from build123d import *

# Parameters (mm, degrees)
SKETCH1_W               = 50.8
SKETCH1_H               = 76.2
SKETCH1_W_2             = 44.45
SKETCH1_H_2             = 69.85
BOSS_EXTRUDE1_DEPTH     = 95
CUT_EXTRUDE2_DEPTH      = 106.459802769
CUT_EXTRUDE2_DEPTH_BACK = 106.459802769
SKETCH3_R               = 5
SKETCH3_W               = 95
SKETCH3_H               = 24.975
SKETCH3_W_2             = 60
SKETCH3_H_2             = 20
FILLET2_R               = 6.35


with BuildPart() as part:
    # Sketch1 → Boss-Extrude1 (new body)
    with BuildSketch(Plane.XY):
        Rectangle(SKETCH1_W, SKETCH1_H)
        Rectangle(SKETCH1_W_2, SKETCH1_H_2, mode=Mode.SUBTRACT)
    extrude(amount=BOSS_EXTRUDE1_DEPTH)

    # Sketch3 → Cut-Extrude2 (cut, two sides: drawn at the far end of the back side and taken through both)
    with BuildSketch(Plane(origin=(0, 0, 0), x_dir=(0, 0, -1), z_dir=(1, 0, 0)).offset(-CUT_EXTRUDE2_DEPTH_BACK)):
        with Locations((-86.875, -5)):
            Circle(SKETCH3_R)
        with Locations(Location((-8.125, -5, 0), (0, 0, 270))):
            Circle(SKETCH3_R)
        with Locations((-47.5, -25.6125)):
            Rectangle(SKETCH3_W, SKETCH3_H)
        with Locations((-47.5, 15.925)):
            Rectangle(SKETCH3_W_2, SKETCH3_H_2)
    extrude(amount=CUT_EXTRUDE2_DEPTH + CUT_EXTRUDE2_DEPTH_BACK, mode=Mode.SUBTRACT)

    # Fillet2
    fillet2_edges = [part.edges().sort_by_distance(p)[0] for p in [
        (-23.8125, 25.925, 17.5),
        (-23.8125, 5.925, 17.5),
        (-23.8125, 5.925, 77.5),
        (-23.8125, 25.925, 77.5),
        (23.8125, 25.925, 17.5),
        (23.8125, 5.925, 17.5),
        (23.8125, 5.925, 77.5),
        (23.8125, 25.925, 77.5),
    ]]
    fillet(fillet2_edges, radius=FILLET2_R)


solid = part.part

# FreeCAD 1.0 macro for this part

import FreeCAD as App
import Part
import Sketcher
Q = App.Units.Quantity


def edges_at(feature, points):
    """Names of the edges that pass closest to the given points."""
    edges = feature.Shape.Edges
    near = lambda p: min(range(len(edges)), key=lambda i: edges[i].distToShape(Part.Vertex(*p))[0])
    return sorted({f"Edge{near(p) + 1}" for p in points})

doc = App.newDocument("Part")
params = doc.addObject("Spreadsheet::Sheet", "Params")
for row, (alias, value) in enumerate([
    ("sketch1_width", "2 in"),
    ("sketch1_height", "3 in"),
    ("sketch1_width2", "1.75 in"),
    ("sketch1_height2", "2.75 in"),
    ("pad1_length", "95 mm"),
    ("fillet_radius", "0.25 in"),
], start=1):
    params.set(f"A{row}", alias)
    params.set(f"B{row}", "=" + value)
    params.setAlias(f"B{row}", alias)

body = doc.addObject("PartDesign::Body", "Body")

sketch1 = body.newObject("Sketcher::SketchObject", "Sketch")
sketch1.AttachmentSupport = (doc.getObject("XY_Plane"), [""])
sketch1.MapMode = "FlatFace"
sketch1.addGeometry([
    Part.LineSegment(App.Vector(-25.4, 38.1, 0), App.Vector(-25.4, -38.1, 0)),
    Part.LineSegment(App.Vector(-25.4, -38.1, 0), App.Vector(25.4, -38.1, 0)),
    Part.LineSegment(App.Vector(25.4, -38.1, 0), App.Vector(25.4, 38.1, 0)),
    Part.LineSegment(App.Vector(25.4, 38.1, 0), App.Vector(-25.4, 38.1, 0)),
    Part.LineSegment(App.Vector(22.225, -34.925, 0), App.Vector(-22.225, -34.925, 0)),
    Part.LineSegment(App.Vector(-22.225, -34.925, 0), App.Vector(-22.225, 34.925, 0)),
    Part.LineSegment(App.Vector(-22.225, 34.925, 0), App.Vector(22.225, 34.925, 0)),
    Part.LineSegment(App.Vector(22.225, 34.925, 0), App.Vector(22.225, -34.925, 0)),
], False)
sketch1.addConstraint([
    Sketcher.Constraint("Coincident", 0, 2, 1, 1),
    Sketcher.Constraint("Coincident", 1, 2, 2, 1),
    Sketcher.Constraint("Coincident", 2, 2, 3, 1),
    Sketcher.Constraint("Coincident", 3, 2, 0, 1),
    Sketcher.Constraint("Coincident", 4, 2, 5, 1),
    Sketcher.Constraint("Coincident", 5, 2, 6, 1),
    Sketcher.Constraint("Coincident", 6, 2, 7, 1),
    Sketcher.Constraint("Coincident", 7, 2, 4, 1),
    Sketcher.Constraint("Vertical", 0),
    Sketcher.Constraint("Horizontal", 1),
    Sketcher.Constraint("Vertical", 2),
    Sketcher.Constraint("Horizontal", 3),
    Sketcher.Constraint("Horizontal", 4),
    Sketcher.Constraint("Vertical", 5),
    Sketcher.Constraint("Horizontal", 6),
    Sketcher.Constraint("Vertical", 7),
    Sketcher.Constraint("Symmetric", 0, 2, 2, 2, -1, 1),
    Sketcher.Constraint("Symmetric", 4, 2, 6, 2, -1, 1),
    Sketcher.Constraint("DistanceX", 1, 1, 1, 2, Q("2 in")),
    Sketcher.Constraint("DistanceY", 0, 2, 0, 1, Q("3 in")),
    Sketcher.Constraint("DistanceX", 4, 2, 4, 1, Q("1.75 in")),
    Sketcher.Constraint("DistanceY", 5, 1, 5, 2, Q("2.75 in")),
])
sketch1.setExpression("Constraints[18]", "Params.sketch1_width")
sketch1.setExpression("Constraints[19]", "Params.sketch1_height")
sketch1.setExpression("Constraints[20]", "Params.sketch1_width2")
sketch1.setExpression("Constraints[21]", "Params.sketch1_height2")
pad1 = body.newObject("PartDesign::Pad", "Pad")
pad1.Profile = sketch1
pad1.setExpression("Length", "Params.pad1_length")

sketch2 = body.newObject("Sketcher::SketchObject", "Sketch001")
sketch2.AttachmentSupport = (doc.getObject("YZ_Plane"), [""])
sketch2.MapMode = "FlatFace"
sketch2.addGeometry([
    Part.Circle(App.Vector(-5, 86.875, 0), App.Vector(0, 0, 1), 5),
    Part.Circle(App.Vector(-5, 8.125, 0), App.Vector(0, 0, 1), 5),
    Part.LineSegment(App.Vector(-13.125, 95, 0), App.Vector(-38.1, 95, 0)),
    Part.LineSegment(App.Vector(-38.1, 95, 0), App.Vector(-38.1, 0, 0)),
    Part.LineSegment(App.Vector(-38.1, 0, 0), App.Vector(-13.125, 0, 0)),
    Part.LineSegment(App.Vector(-13.125, 0, 0), App.Vector(-13.125, 95, 0)),
    Part.LineSegment(App.Vector(25.925, 77.5, 0), App.Vector(5.925, 77.5, 0)),
    Part.LineSegment(App.Vector(5.925, 77.5, 0), App.Vector(5.925, 17.5, 0)),
    Part.LineSegment(App.Vector(5.925, 17.5, 0), App.Vector(25.925, 17.5, 0)),
    Part.LineSegment(App.Vector(25.925, 17.5, 0), App.Vector(25.925, 77.5, 0)),
], False)
sketch2.addConstraint([
    Sketcher.Constraint("Coincident", 2, 2, 3, 1),
    Sketcher.Constraint("Coincident", 3, 2, 4, 1),
    Sketcher.Constraint("Coincident", 4, 2, 5, 1),
    Sketcher.Constraint("Coincident", 5, 2, 2, 1),
    Sketcher.Constraint("Coincident", 6, 2, 7, 1),
    Sketcher.Constraint("Coincident", 7, 2, 8, 1),
    Sketcher.Constraint("Coincident", 8, 2, 9, 1),
    Sketcher.Constraint("Coincident", 9, 2, 6, 1),
    Sketcher.Constraint("Horizontal", 2),
    Sketcher.Constraint("Vertical", 3),
    Sketcher.Constraint("Horizontal", 4),
    Sketcher.Constraint("Vertical", 5),
    Sketcher.Constraint("Horizontal", 6),
    Sketcher.Constraint("Vertical", 7),
    Sketcher.Constraint("Horizontal", 8),
    Sketcher.Constraint("Vertical", 9),
    Sketcher.Constraint("Equal", 0, 1),
    Sketcher.Constraint("PointOnObject", 3, 2, -1),
    Sketcher.Constraint("Vertical", 0, 3, 1, 3),
    Sketcher.Constraint("DistanceX", 2, 2, -1, 1, Q("1.5 in")),
    Sketcher.Constraint("Diameter", 0, 10.0),
    Sketcher.Constraint("DistanceX", 5, 2, 6, 2, Q("0.75 in")),
    Sketcher.Constraint("DistanceX", 2, 2, 2, 1, 24.975),
    Sketcher.Constraint("DistanceX", 6, 2, 6, 1, 20.0),
    Sketcher.Constraint("DistanceY", 3, 2, 3, 1, 95.0),
    Sketcher.Constraint("DistanceY", 7, 2, 7, 1, 60.0),
    Sketcher.Constraint("DistanceX", 0, 3, -1, 1, 5.0),
    Sketcher.Constraint("DistanceY", -1, 1, 0, 3, 86.875),
    Sketcher.Constraint("DistanceY", -1, 1, 1, 3, 8.125),
    Sketcher.Constraint("DistanceY", -1, 1, 6, 2, 77.5),
])
pocket1 = body.newObject("PartDesign::Pocket", "Pocket")
pocket1.Profile = sketch2
pocket1.Type = "ThroughAll"
pocket1.Midplane = True
doc.recompute()

fillet = body.newObject("PartDesign::Fillet", "Fillet")
fillet.Base = (pocket1, edges_at(pocket1, [
    (-23.812, 25.925, 17.5),
    (-23.812, 5.925, 17.5),
    (-23.812, 5.925, 77.5),
    (-23.812, 25.925, 77.5),
    (23.812, 25.925, 17.5),
    (23.812, 5.925, 17.5),
    (23.812, 5.925, 77.5),
    (23.812, 25.925, 77.5),
]))
fillet.setExpression("Radius", "Params.fillet_radius")

doc.recompute()
